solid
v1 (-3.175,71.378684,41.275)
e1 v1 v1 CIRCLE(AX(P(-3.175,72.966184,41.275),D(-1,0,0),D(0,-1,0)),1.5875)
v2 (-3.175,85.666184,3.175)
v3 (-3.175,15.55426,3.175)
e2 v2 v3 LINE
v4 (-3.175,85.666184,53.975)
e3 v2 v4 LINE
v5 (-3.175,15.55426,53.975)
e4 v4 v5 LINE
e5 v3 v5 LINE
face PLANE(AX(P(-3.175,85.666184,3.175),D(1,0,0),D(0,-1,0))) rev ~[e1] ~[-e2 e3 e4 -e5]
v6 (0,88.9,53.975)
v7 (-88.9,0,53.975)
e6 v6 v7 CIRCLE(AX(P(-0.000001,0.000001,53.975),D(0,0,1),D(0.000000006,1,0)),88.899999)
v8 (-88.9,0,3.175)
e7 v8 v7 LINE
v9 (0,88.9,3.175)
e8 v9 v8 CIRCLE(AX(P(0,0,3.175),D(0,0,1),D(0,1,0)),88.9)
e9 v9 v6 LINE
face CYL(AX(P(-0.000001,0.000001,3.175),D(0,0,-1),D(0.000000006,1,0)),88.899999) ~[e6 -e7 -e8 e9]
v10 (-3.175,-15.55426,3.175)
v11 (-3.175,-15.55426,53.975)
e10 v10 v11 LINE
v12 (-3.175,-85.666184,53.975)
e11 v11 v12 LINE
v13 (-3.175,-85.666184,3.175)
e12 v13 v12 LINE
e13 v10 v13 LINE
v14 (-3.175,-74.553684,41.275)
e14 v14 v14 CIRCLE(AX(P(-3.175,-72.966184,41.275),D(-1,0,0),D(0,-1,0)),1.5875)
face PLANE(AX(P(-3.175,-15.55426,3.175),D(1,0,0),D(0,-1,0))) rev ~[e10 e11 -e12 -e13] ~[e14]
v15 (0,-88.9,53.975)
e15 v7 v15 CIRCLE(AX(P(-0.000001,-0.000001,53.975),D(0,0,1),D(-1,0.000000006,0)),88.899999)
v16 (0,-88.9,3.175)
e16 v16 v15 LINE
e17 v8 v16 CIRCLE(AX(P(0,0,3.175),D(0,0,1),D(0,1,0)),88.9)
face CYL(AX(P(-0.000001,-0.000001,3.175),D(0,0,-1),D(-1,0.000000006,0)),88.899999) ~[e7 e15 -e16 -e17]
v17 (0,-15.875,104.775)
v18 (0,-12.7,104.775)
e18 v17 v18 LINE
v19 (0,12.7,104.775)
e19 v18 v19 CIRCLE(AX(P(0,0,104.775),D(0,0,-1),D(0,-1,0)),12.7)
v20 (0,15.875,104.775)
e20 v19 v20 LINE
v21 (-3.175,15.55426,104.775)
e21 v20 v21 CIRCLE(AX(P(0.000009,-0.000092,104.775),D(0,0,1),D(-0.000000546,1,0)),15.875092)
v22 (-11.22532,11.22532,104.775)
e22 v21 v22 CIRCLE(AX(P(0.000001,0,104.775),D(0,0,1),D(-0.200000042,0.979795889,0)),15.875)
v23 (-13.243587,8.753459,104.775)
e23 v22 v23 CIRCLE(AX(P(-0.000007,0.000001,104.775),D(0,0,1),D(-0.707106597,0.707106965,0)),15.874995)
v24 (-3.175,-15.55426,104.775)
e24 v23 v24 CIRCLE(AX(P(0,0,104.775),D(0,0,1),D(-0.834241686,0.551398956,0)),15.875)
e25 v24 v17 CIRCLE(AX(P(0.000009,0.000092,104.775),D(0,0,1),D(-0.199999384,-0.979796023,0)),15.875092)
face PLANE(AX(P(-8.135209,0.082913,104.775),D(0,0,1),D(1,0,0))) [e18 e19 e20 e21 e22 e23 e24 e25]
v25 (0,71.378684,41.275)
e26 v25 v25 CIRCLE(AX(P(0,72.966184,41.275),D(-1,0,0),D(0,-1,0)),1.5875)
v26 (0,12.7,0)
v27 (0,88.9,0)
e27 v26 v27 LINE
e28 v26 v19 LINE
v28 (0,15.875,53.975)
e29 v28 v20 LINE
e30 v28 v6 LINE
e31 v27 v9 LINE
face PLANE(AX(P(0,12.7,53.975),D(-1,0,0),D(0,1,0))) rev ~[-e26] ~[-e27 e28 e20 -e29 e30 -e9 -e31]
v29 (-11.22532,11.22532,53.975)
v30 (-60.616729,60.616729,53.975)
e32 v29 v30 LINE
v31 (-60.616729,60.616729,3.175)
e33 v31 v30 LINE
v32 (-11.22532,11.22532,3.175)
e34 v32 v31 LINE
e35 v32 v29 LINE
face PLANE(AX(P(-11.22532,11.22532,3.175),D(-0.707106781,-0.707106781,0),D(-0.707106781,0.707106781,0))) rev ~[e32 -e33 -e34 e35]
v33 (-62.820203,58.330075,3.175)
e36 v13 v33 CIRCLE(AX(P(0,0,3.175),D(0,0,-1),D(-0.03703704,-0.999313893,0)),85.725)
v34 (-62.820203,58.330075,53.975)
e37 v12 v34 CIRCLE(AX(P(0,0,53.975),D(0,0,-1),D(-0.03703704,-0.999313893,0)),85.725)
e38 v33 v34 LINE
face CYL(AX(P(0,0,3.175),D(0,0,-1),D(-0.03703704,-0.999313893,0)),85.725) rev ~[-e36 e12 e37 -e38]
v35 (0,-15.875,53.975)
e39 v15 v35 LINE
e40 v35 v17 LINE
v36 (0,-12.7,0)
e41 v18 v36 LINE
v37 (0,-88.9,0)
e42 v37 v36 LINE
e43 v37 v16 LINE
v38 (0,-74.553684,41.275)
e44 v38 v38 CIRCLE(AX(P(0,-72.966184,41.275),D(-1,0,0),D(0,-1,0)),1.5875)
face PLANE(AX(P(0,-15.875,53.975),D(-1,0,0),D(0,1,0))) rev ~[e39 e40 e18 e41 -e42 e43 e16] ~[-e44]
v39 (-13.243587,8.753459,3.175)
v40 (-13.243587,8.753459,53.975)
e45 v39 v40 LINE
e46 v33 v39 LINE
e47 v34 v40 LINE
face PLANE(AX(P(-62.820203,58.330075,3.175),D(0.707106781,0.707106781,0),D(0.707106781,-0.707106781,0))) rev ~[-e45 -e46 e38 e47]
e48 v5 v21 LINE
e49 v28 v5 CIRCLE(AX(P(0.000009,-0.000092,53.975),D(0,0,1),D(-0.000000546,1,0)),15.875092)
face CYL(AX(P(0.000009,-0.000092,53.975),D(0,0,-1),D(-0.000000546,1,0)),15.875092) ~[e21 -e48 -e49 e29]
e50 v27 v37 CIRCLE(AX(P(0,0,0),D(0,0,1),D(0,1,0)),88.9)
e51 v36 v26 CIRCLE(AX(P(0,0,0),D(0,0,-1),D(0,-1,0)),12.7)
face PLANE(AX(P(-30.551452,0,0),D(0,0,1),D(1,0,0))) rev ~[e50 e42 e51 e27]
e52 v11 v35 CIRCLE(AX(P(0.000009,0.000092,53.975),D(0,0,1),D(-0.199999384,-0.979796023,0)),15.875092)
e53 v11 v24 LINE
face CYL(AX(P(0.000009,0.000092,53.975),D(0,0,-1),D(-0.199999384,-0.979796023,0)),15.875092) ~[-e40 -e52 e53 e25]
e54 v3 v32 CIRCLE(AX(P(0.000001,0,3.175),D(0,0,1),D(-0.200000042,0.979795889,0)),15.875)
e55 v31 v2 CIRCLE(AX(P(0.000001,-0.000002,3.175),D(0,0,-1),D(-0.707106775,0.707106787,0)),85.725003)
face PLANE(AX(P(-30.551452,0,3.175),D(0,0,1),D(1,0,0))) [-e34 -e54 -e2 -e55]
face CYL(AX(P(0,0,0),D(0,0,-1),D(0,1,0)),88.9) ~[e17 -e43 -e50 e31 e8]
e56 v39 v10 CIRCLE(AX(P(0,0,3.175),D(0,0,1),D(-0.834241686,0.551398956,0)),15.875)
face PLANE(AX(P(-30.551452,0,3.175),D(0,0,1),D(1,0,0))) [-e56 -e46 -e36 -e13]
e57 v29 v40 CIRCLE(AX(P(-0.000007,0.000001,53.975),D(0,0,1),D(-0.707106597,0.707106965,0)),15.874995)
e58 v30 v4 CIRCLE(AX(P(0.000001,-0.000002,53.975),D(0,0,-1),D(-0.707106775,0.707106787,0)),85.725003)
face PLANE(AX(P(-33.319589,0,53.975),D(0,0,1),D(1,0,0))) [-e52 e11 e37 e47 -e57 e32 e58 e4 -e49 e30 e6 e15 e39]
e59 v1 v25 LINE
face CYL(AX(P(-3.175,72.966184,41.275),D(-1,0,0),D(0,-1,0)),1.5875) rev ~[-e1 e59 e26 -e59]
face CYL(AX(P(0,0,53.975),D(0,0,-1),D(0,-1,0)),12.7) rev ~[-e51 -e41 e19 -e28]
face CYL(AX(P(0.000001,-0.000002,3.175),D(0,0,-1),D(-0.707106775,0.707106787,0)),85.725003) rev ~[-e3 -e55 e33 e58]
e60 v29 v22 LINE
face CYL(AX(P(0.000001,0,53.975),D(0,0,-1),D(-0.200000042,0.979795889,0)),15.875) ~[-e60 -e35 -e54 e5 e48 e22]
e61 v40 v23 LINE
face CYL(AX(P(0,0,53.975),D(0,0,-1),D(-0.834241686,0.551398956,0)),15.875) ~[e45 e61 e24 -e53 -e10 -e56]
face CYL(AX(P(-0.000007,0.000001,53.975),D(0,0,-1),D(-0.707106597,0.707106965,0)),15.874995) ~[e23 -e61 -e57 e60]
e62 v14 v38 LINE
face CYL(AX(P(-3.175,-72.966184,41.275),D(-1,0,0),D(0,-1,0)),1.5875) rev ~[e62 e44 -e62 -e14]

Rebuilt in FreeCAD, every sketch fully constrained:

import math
import FreeCAD as App
import Part
import Sketcher
from FreeCAD import Vector
Q = App.Units.Quantity

doc = App.newDocument("Part")
body = doc.addObject("PartDesign::Body", "Body")

sketch1 = doc.addObject("Sketcher::SketchObject", "Sketch")
body.addObject(sketch1)
sketch1.AttachmentSupport = (doc.XY_Plane, [""])
sketch1.MapMode = "FlatFace"
sketch1.addGeometry(Part.LineSegment(Vector(0, 12.7, 0), Vector(0, 88.9, 0)), False)
sketch1.addGeometry(Part.ArcOfCircle(Part.Circle(Vector(0, 0, 0), Vector(0, 0, 1), 88.9), math.radians(90), math.radians(270)), False)
sketch1.addGeometry(Part.LineSegment(Vector(0, -88.9, 0), Vector(0, -12.7, 0)), False)
sketch1.addGeometry(Part.ArcOfCircle(Part.Circle(Vector(0, 0, 0), Vector(0, 0, 1), 12.7), math.radians(90), math.radians(270)), False)
sketch1.addConstraint(Sketcher.Constraint("Coincident", 0, 2, 1, 1))
sketch1.addConstraint(Sketcher.Constraint("Coincident", 1, 2, 2, 1))
sketch1.addConstraint(Sketcher.Constraint("Coincident", 2, 2, 3, 2))
sketch1.addConstraint(Sketcher.Constraint("Coincident", 3, 1, 0, 1))
sketch1.addConstraint(Sketcher.Constraint("Vertical", 0))
sketch1.addConstraint(Sketcher.Constraint("Vertical", 2))
sketch1.addConstraint(Sketcher.Constraint("Coincident", 1, 3, -1, 1))
sketch1.addConstraint(Sketcher.Constraint("Coincident", 3, 3, -1, 1))
sketch1.addConstraint(Sketcher.Constraint("PointOnObject", 0, 2, -2))
sketch1.addConstraint(Sketcher.Constraint("PointOnObject", 1, 2, -2))
sketch1.addConstraint(Sketcher.Constraint("Radius", 1, Q("3.5 in")))
sketch1.addConstraint(Sketcher.Constraint("Radius", 3, Q("0.5 in")))
pad1 = doc.addObject("PartDesign::Pad", "Pad")
body.addObject(pad1)
pad1.Profile = sketch1
pad1.Length = Q("0.125 in")

sketch2 = doc.addObject("Sketcher::SketchObject", "Sketch001")
body.addObject(sketch2)
sketch2.AttachmentSupport = (doc.XY_Plane, [""])
sketch2.MapMode = "FlatFace"
sketch2.AttachmentOffset = App.Placement(Vector(0, 0, 0.125 * 25.4), App.Rotation())
sketch2.addGeometry(Part.ArcOfCircle(Part.Circle(Vector(0, 0, 0), Vector(0, 0, 1), 12.7), math.radians(90), math.radians(270)), False)
sketch2.addGeometry(Part.LineSegment(Vector(0, 12.7, 0), Vector(0, 88.9, 0)), False)
sketch2.addGeometry(Part.ArcOfCircle(Part.Circle(Vector(-0.000001, 0.000001, 0), Vector(0, 0, 1), 88.899999), math.radians(90), math.radians(180)), False)
sketch2.addGeometry(Part.ArcOfCircle(Part.Circle(Vector(-0.000001, -0.000001, 0), Vector(0, 0, 1), 88.899999), math.radians(180), math.radians(270)), False)
sketch2.addGeometry(Part.LineSegment(Vector(0, -88.9, 0), Vector(0, -12.7, 0)), False)
sketch2.addGeometry(Part.LineSegment(Vector(-62.820203, 58.330075, 0), Vector(-13.243587, 8.753459, 0)), False)
sketch2.addGeometry(Part.ArcOfCircle(Part.Circle(Vector(0, 0, 0), Vector(0, 0, 1), 15.875), math.radians(146.53696), math.radians(258.463041)), False)
sketch2.addGeometry(Part.LineSegment(Vector(-3.175, -15.55426, 0), Vector(-3.175, -85.666184, 0)), False)
sketch2.addGeometry(Part.ArcOfCircle(Part.Circle(Vector(0, 0, 0), Vector(0, 0, 1), 85.725), math.radians(137.122551), math.radians(267.877448)), False)
sketch2.addGeometry(Part.ArcOfCircle(Part.Circle(Vector(0.000001, -0.000002, 0), Vector(0, 0, 1), 85.725003), math.radians(92.122552), math.radians(135)), False)
sketch2.addGeometry(Part.LineSegment(Vector(-3.175, 85.666184, 0), Vector(-3.175, 15.55426, 0)), False)
sketch2.addGeometry(Part.ArcOfCircle(Part.Circle(Vector(0.000001, 0, 0), Vector(0, 0, 1), 15.875), math.radians(101.536961), math.radians(135.000002)), False)
sketch2.addGeometry(Part.LineSegment(Vector(-11.22532, 11.22532, 0), Vector(-60.616729, 60.616729, 0)), False)
sketch2.addConstraint(Sketcher.Constraint("Coincident", 0, 1, 1, 1))
sketch2.addConstraint(Sketcher.Constraint("Coincident", 1, 2, 2, 1))
sketch2.addConstraint(Sketcher.Constraint("Tangent", 2, 2, 3, 1))
sketch2.addConstraint(Sketcher.Constraint("Coincident", 3, 2, 4, 1))
sketch2.addConstraint(Sketcher.Constraint("Coincident", 4, 2, 0, 2))
sketch2.addConstraint(Sketcher.Constraint("Coincident", 5, 2, 6, 1))
sketch2.addConstraint(Sketcher.Constraint("Coincident", 6, 2, 7, 1))
sketch2.addConstraint(Sketcher.Constraint("Coincident", 7, 2, 8, 2))
sketch2.addConstraint(Sketcher.Constraint("Coincident", 8, 1, 5, 1))
sketch2.addConstraint(Sketcher.Constraint("Coincident", 9, 1, 10, 1))
sketch2.addConstraint(Sketcher.Constraint("Coincident", 10, 2, 11, 1))
sketch2.addConstraint(Sketcher.Constraint("Coincident", 11, 2, 12, 1))
sketch2.addConstraint(Sketcher.Constraint("Coincident", 12, 2, 9, 2))
sketch2.addConstraint(Sketcher.Constraint("Vertical", 1))
sketch2.addConstraint(Sketcher.Constraint("Vertical", 4))
sketch2.addConstraint(Sketcher.Constraint("Vertical", 7))
sketch2.addConstraint(Sketcher.Constraint("Vertical", 10))
sketch2.addConstraint(Sketcher.Constraint("Coincident", 0, 3, -1, 1))
sketch2.addConstraint(Sketcher.Constraint("Coincident", 2, 3, -1, 1))
sketch2.addConstraint(Sketcher.Constraint("Coincident", 6, 3, -1, 1))
sketch2.addConstraint(Sketcher.Constraint("Coincident", 8, 3, -1, 1))
sketch2.addConstraint(Sketcher.Constraint("Coincident", 9, 3, -1, 1))
sketch2.addConstraint(Sketcher.Constraint("Coincident", 11, 3, -1, 1))
sketch2.addConstraint(Sketcher.Constraint("Equal", 2, 3))
sketch2.addConstraint(Sketcher.Constraint("Equal", 6, 11))
sketch2.addConstraint(Sketcher.Constraint("Symmetric", 7, 2, 9, 1, -1))
sketch2.addConstraint(Sketcher.Constraint("PointOnObject", 0, 1, -2))
sketch2.addConstraint(Sketcher.Constraint("PointOnObject", 2, 2, -1))
sketch2.addConstraint(Sketcher.Constraint("PointOnObject", 3, 2, -2))
sketch2.addConstraint(Sketcher.Constraint("Parallel", 5, 12))
sketch2.addConstraint(Sketcher.Constraint("Radius", 0, Q("0.5 in")))
sketch2.addConstraint(Sketcher.Constraint("Radius", 2, Q("3.5 in")))
sketch2.addConstraint(Sketcher.Constraint("Angle", 5, Q("-45 deg")))
sketch2.addConstraint(Sketcher.Constraint("Radius", 6, Q("0.625 in")))
sketch2.addConstraint(Sketcher.Constraint("Radius", 8, Q("3.375 in")))
sketch2.addConstraint(Sketcher.Constraint("DistanceX", 6, 2, -1, 1, Q("0.125 in")))
sketch2.addConstraint(Sketcher.Constraint("DistanceY", 5, 2, 10, 2, 6.800801))
sketch2.addConstraint(Sketcher.Constraint("DistanceX", 11, 2, -1, 1, 11.22532))
pad2 = doc.addObject("PartDesign::Pad", "Pad001")
body.addObject(pad2)
pad2.Profile = sketch2
pad2.Length = Q("2 in")

sketch3 = doc.addObject("Sketcher::SketchObject", "Sketch002")
body.addObject(sketch3)
sketch3.AttachmentSupport = (doc.XY_Plane, [""])
sketch3.MapMode = "FlatFace"
sketch3.AttachmentOffset = App.Placement(Vector(0, 0, 2.125 * 25.4), App.Rotation())
sketch3.addGeometry(Part.ArcOfCircle(Part.Circle(Vector(0, 0, 0), Vector(0, 0, 1), 12.7), math.radians(90), math.radians(270)), False)
sketch3.addGeometry(Part.LineSegment(Vector(0, 12.7, 0), Vector(0, 15.875, 0)), False)
sketch3.addGeometry(Part.ArcOfCircle(Part.Circle(Vector(0.000009, -0.000092, 0), Vector(0, 0, 1), 15.875092), math.radians(90.000031), math.radians(101.536923)), False)
sketch3.addGeometry(Part.ArcOfCircle(Part.Circle(Vector(0.000001, 0, 0), Vector(0, 0, 1), 15.875), math.radians(101.536961), math.radians(135.000002)), False)
sketch3.addGeometry(Part.ArcOfCircle(Part.Circle(Vector(-0.000007, 0.000001, 0), Vector(0, 0, 1), 15.874995), math.radians(134.999985), math.radians(146.536948)), False)
sketch3.addGeometry(Part.ArcOfCircle(Part.Circle(Vector(0, 0, 0), Vector(0, 0, 1), 15.875), math.radians(146.53696), math.radians(258.463041)), False)
sketch3.addGeometry(Part.ArcOfCircle(Part.Circle(Vector(0.000009, 0.000092, 0), Vector(0, 0, 1), 15.875092), math.radians(-101.536923), math.radians(-90.000031)), False)
sketch3.addGeometry(Part.LineSegment(Vector(0, -15.875, 0), Vector(0, -12.7, 0)), False)
sketch3.addConstraint(Sketcher.Constraint("Coincident", 0, 1, 1, 1))
sketch3.addConstraint(Sketcher.Constraint("Coincident", 1, 2, 2, 1))
sketch3.addConstraint(Sketcher.Constraint("Coincident", 2, 2, 3, 1))
sketch3.addConstraint(Sketcher.Constraint("Coincident", 3, 2, 4, 1))
sketch3.addConstraint(Sketcher.Constraint("Coincident", 4, 2, 5, 1))
sketch3.addConstraint(Sketcher.Constraint("Coincident", 5, 2, 6, 1))
sketch3.addConstraint(Sketcher.Constraint("Coincident", 6, 2, 7, 1))
sketch3.addConstraint(Sketcher.Constraint("Coincident", 7, 2, 0, 2))
sketch3.addConstraint(Sketcher.Constraint("Vertical", 1))
sketch3.addConstraint(Sketcher.Constraint("Vertical", 7))
sketch3.addConstraint(Sketcher.Constraint("Coincident", 0, 3, -1, 1))
sketch3.addConstraint(Sketcher.Constraint("Coincident", 3, 3, -1, 1))
sketch3.addConstraint(Sketcher.Constraint("Coincident", 4, 3, -1, 1))
sketch3.addConstraint(Sketcher.Constraint("Coincident", 5, 3, -1, 1))
sketch3.addConstraint(Sketcher.Constraint("PointOnObject", 0, 1, -2))
sketch3.addConstraint(Sketcher.Constraint("PointOnObject", 6, 2, -2))
sketch3.addConstraint(Sketcher.Constraint("Radius", 0, Q("0.5 in")))
sketch3.addConstraint(Sketcher.Constraint("Radius", 3, Q("0.625 in")))
sketch3.addConstraint(Sketcher.Constraint("DistanceY", 1, 1, 1, 2, Q("0.125 in")))
sketch3.addConstraint(Sketcher.Constraint("DistanceY", 7, 1, 7, 2, Q("0.125 in")))
sketch3.addConstraint(Sketcher.Constraint("DistanceX", 2, 2, -1, 1, Q("0.125 in")))
sketch3.addConstraint(Sketcher.Constraint("DistanceX", 5, 2, -1, 1, Q("0.125 in")))
sketch3.addConstraint(Sketcher.Constraint("Radius", 2, 15.875092))
sketch3.addConstraint(Sketcher.Constraint("Radius", 6, 15.875092))
sketch3.addConstraint(Sketcher.Constraint("DistanceY", 4, 2, 2, 2, 6.800801))
sketch3.addConstraint(Sketcher.Constraint("DistanceX", 3, 2, -1, 1, 11.22532))
pad3 = doc.addObject("PartDesign::Pad", "Pad002")
body.addObject(pad3)
pad3.Profile = sketch3
pad3.Length = Q("2 in")

sketch4 = doc.addObject("Sketcher::SketchObject", "Sketch003")
body.addObject(sketch4)
sketch4.AttachmentSupport = (doc.YZ_Plane, [""])
sketch4.MapMode = "FlatFace"
sketch4.AttachmentOffset = App.Placement(Vector(0, 0, -0.125 * 25.4), App.Rotation())
sketch4.addGeometry(Part.Circle(Vector(-72.966184, 41.275, 0), Vector(0, 0, 1), 1.5875), False)
sketch4.addGeometry(Part.Circle(Vector(72.966184, 41.275, 0), Vector(0, 0, 1), 1.5875), False)
sketch4.addConstraint(Sketcher.Constraint("Equal", 0, 1))
sketch4.addConstraint(Sketcher.Constraint("Symmetric", 0, 3, 1, 3, -2))
sketch4.addConstraint(Sketcher.Constraint("Diameter", 0, Q("0.125 in")))
sketch4.addConstraint(Sketcher.Constraint("DistanceY", -1, 1, 0, 3, Q("1.625 in")))
sketch4.addConstraint(Sketcher.Constraint("DistanceX", 0, 3, 1, 3, 145.932368))
pocket1 = doc.addObject("PartDesign::Pocket", "Pocket")
body.addObject(pocket1)
pocket1.Profile = sketch4
pocket1.Length = Q("0.125 in")
pocket1.Reversed = True

doc.recompute()
